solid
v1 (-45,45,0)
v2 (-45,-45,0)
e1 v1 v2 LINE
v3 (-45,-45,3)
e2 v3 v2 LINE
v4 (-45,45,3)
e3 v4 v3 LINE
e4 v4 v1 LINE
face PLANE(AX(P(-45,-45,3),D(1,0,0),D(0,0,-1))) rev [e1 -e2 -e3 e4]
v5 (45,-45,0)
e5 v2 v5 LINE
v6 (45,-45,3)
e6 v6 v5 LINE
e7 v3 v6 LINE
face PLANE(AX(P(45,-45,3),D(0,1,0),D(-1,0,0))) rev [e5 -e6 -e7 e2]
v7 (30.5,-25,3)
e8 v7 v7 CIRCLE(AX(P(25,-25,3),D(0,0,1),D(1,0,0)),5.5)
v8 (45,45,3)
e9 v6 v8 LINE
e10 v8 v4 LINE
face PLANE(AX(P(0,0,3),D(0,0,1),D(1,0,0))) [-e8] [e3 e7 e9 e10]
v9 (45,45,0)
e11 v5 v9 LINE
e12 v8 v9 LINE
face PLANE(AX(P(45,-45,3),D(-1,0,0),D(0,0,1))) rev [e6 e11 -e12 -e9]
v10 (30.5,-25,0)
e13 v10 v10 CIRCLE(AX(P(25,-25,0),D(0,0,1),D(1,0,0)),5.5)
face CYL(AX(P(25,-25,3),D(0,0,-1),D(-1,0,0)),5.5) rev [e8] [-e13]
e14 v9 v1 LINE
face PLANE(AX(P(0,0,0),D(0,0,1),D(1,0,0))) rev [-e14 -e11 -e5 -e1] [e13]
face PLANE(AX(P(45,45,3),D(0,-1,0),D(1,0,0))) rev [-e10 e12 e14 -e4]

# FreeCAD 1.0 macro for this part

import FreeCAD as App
import Part
import Sketcher

V = App.Vector
Q = App.Units.Quantity


def add_polygon(sketch, points):
    """Adds a closed chain of lines whose ends are joined by coincident constraints."""
    first, n = sketch.GeometryCount, len(points)
    for a, b in zip(points, points[1:] + points[:1]):
        sketch.addGeometry(Part.LineSegment(App.Vector(*a, 0), App.Vector(*b, 0)), False)
    for i in range(n):
        sketch.addConstraint(Sketcher.Constraint("Coincident", first + i, 2, first + (i + 1) % n, 1))

doc = App.newDocument("Part")
body = doc.addObject("PartDesign::Body", "Body")

# Sketch on XY plane
sketch1 = body.newObject("Sketcher::SketchObject", "Sketch")
sketch1.AttachmentSupport = (doc.getObject("XY_Plane"), [""])
sketch1.MapMode = "FlatFace"
add_polygon(sketch1, [(-45, 45), (-45, -45), (45, -45), (45, 45)])  # lines 0-3
sketch1.addGeometry(Part.Circle(V(25, -25, 0), V(0, 0, 1), 6), False)  # 4
sketch1.addConstraint(Sketcher.Constraint("Vertical", 0))
sketch1.addConstraint(Sketcher.Constraint("Horizontal", 1))
sketch1.addConstraint(Sketcher.Constraint("Vertical", 2))
sketch1.addConstraint(Sketcher.Constraint("Horizontal", 3))
sketch1.addConstraint(Sketcher.Constraint("Symmetric", 0, 2, 2, 2, -1, 1))
sketch1.addConstraint(Sketcher.Constraint("Equal", 3, 0))
sketch1.addConstraint(Sketcher.Constraint("Diameter", 4, Q("11 mm")))
sketch1.addConstraint(Sketcher.Constraint("DistanceX", 1, 1, 1, 2, Q("90 mm")))
sketch1.addConstraint(Sketcher.Constraint("DistanceX", -1, 1, 4, 3, Q("25 mm")))
sketch1.addConstraint(Sketcher.Constraint("DistanceY", 4, 3, -1, 1, Q("25 mm")))
pad1 = body.newObject("PartDesign::Pad", "Pad")
pad1.Profile = sketch1
pad1.Length = 3

doc.recompute()
